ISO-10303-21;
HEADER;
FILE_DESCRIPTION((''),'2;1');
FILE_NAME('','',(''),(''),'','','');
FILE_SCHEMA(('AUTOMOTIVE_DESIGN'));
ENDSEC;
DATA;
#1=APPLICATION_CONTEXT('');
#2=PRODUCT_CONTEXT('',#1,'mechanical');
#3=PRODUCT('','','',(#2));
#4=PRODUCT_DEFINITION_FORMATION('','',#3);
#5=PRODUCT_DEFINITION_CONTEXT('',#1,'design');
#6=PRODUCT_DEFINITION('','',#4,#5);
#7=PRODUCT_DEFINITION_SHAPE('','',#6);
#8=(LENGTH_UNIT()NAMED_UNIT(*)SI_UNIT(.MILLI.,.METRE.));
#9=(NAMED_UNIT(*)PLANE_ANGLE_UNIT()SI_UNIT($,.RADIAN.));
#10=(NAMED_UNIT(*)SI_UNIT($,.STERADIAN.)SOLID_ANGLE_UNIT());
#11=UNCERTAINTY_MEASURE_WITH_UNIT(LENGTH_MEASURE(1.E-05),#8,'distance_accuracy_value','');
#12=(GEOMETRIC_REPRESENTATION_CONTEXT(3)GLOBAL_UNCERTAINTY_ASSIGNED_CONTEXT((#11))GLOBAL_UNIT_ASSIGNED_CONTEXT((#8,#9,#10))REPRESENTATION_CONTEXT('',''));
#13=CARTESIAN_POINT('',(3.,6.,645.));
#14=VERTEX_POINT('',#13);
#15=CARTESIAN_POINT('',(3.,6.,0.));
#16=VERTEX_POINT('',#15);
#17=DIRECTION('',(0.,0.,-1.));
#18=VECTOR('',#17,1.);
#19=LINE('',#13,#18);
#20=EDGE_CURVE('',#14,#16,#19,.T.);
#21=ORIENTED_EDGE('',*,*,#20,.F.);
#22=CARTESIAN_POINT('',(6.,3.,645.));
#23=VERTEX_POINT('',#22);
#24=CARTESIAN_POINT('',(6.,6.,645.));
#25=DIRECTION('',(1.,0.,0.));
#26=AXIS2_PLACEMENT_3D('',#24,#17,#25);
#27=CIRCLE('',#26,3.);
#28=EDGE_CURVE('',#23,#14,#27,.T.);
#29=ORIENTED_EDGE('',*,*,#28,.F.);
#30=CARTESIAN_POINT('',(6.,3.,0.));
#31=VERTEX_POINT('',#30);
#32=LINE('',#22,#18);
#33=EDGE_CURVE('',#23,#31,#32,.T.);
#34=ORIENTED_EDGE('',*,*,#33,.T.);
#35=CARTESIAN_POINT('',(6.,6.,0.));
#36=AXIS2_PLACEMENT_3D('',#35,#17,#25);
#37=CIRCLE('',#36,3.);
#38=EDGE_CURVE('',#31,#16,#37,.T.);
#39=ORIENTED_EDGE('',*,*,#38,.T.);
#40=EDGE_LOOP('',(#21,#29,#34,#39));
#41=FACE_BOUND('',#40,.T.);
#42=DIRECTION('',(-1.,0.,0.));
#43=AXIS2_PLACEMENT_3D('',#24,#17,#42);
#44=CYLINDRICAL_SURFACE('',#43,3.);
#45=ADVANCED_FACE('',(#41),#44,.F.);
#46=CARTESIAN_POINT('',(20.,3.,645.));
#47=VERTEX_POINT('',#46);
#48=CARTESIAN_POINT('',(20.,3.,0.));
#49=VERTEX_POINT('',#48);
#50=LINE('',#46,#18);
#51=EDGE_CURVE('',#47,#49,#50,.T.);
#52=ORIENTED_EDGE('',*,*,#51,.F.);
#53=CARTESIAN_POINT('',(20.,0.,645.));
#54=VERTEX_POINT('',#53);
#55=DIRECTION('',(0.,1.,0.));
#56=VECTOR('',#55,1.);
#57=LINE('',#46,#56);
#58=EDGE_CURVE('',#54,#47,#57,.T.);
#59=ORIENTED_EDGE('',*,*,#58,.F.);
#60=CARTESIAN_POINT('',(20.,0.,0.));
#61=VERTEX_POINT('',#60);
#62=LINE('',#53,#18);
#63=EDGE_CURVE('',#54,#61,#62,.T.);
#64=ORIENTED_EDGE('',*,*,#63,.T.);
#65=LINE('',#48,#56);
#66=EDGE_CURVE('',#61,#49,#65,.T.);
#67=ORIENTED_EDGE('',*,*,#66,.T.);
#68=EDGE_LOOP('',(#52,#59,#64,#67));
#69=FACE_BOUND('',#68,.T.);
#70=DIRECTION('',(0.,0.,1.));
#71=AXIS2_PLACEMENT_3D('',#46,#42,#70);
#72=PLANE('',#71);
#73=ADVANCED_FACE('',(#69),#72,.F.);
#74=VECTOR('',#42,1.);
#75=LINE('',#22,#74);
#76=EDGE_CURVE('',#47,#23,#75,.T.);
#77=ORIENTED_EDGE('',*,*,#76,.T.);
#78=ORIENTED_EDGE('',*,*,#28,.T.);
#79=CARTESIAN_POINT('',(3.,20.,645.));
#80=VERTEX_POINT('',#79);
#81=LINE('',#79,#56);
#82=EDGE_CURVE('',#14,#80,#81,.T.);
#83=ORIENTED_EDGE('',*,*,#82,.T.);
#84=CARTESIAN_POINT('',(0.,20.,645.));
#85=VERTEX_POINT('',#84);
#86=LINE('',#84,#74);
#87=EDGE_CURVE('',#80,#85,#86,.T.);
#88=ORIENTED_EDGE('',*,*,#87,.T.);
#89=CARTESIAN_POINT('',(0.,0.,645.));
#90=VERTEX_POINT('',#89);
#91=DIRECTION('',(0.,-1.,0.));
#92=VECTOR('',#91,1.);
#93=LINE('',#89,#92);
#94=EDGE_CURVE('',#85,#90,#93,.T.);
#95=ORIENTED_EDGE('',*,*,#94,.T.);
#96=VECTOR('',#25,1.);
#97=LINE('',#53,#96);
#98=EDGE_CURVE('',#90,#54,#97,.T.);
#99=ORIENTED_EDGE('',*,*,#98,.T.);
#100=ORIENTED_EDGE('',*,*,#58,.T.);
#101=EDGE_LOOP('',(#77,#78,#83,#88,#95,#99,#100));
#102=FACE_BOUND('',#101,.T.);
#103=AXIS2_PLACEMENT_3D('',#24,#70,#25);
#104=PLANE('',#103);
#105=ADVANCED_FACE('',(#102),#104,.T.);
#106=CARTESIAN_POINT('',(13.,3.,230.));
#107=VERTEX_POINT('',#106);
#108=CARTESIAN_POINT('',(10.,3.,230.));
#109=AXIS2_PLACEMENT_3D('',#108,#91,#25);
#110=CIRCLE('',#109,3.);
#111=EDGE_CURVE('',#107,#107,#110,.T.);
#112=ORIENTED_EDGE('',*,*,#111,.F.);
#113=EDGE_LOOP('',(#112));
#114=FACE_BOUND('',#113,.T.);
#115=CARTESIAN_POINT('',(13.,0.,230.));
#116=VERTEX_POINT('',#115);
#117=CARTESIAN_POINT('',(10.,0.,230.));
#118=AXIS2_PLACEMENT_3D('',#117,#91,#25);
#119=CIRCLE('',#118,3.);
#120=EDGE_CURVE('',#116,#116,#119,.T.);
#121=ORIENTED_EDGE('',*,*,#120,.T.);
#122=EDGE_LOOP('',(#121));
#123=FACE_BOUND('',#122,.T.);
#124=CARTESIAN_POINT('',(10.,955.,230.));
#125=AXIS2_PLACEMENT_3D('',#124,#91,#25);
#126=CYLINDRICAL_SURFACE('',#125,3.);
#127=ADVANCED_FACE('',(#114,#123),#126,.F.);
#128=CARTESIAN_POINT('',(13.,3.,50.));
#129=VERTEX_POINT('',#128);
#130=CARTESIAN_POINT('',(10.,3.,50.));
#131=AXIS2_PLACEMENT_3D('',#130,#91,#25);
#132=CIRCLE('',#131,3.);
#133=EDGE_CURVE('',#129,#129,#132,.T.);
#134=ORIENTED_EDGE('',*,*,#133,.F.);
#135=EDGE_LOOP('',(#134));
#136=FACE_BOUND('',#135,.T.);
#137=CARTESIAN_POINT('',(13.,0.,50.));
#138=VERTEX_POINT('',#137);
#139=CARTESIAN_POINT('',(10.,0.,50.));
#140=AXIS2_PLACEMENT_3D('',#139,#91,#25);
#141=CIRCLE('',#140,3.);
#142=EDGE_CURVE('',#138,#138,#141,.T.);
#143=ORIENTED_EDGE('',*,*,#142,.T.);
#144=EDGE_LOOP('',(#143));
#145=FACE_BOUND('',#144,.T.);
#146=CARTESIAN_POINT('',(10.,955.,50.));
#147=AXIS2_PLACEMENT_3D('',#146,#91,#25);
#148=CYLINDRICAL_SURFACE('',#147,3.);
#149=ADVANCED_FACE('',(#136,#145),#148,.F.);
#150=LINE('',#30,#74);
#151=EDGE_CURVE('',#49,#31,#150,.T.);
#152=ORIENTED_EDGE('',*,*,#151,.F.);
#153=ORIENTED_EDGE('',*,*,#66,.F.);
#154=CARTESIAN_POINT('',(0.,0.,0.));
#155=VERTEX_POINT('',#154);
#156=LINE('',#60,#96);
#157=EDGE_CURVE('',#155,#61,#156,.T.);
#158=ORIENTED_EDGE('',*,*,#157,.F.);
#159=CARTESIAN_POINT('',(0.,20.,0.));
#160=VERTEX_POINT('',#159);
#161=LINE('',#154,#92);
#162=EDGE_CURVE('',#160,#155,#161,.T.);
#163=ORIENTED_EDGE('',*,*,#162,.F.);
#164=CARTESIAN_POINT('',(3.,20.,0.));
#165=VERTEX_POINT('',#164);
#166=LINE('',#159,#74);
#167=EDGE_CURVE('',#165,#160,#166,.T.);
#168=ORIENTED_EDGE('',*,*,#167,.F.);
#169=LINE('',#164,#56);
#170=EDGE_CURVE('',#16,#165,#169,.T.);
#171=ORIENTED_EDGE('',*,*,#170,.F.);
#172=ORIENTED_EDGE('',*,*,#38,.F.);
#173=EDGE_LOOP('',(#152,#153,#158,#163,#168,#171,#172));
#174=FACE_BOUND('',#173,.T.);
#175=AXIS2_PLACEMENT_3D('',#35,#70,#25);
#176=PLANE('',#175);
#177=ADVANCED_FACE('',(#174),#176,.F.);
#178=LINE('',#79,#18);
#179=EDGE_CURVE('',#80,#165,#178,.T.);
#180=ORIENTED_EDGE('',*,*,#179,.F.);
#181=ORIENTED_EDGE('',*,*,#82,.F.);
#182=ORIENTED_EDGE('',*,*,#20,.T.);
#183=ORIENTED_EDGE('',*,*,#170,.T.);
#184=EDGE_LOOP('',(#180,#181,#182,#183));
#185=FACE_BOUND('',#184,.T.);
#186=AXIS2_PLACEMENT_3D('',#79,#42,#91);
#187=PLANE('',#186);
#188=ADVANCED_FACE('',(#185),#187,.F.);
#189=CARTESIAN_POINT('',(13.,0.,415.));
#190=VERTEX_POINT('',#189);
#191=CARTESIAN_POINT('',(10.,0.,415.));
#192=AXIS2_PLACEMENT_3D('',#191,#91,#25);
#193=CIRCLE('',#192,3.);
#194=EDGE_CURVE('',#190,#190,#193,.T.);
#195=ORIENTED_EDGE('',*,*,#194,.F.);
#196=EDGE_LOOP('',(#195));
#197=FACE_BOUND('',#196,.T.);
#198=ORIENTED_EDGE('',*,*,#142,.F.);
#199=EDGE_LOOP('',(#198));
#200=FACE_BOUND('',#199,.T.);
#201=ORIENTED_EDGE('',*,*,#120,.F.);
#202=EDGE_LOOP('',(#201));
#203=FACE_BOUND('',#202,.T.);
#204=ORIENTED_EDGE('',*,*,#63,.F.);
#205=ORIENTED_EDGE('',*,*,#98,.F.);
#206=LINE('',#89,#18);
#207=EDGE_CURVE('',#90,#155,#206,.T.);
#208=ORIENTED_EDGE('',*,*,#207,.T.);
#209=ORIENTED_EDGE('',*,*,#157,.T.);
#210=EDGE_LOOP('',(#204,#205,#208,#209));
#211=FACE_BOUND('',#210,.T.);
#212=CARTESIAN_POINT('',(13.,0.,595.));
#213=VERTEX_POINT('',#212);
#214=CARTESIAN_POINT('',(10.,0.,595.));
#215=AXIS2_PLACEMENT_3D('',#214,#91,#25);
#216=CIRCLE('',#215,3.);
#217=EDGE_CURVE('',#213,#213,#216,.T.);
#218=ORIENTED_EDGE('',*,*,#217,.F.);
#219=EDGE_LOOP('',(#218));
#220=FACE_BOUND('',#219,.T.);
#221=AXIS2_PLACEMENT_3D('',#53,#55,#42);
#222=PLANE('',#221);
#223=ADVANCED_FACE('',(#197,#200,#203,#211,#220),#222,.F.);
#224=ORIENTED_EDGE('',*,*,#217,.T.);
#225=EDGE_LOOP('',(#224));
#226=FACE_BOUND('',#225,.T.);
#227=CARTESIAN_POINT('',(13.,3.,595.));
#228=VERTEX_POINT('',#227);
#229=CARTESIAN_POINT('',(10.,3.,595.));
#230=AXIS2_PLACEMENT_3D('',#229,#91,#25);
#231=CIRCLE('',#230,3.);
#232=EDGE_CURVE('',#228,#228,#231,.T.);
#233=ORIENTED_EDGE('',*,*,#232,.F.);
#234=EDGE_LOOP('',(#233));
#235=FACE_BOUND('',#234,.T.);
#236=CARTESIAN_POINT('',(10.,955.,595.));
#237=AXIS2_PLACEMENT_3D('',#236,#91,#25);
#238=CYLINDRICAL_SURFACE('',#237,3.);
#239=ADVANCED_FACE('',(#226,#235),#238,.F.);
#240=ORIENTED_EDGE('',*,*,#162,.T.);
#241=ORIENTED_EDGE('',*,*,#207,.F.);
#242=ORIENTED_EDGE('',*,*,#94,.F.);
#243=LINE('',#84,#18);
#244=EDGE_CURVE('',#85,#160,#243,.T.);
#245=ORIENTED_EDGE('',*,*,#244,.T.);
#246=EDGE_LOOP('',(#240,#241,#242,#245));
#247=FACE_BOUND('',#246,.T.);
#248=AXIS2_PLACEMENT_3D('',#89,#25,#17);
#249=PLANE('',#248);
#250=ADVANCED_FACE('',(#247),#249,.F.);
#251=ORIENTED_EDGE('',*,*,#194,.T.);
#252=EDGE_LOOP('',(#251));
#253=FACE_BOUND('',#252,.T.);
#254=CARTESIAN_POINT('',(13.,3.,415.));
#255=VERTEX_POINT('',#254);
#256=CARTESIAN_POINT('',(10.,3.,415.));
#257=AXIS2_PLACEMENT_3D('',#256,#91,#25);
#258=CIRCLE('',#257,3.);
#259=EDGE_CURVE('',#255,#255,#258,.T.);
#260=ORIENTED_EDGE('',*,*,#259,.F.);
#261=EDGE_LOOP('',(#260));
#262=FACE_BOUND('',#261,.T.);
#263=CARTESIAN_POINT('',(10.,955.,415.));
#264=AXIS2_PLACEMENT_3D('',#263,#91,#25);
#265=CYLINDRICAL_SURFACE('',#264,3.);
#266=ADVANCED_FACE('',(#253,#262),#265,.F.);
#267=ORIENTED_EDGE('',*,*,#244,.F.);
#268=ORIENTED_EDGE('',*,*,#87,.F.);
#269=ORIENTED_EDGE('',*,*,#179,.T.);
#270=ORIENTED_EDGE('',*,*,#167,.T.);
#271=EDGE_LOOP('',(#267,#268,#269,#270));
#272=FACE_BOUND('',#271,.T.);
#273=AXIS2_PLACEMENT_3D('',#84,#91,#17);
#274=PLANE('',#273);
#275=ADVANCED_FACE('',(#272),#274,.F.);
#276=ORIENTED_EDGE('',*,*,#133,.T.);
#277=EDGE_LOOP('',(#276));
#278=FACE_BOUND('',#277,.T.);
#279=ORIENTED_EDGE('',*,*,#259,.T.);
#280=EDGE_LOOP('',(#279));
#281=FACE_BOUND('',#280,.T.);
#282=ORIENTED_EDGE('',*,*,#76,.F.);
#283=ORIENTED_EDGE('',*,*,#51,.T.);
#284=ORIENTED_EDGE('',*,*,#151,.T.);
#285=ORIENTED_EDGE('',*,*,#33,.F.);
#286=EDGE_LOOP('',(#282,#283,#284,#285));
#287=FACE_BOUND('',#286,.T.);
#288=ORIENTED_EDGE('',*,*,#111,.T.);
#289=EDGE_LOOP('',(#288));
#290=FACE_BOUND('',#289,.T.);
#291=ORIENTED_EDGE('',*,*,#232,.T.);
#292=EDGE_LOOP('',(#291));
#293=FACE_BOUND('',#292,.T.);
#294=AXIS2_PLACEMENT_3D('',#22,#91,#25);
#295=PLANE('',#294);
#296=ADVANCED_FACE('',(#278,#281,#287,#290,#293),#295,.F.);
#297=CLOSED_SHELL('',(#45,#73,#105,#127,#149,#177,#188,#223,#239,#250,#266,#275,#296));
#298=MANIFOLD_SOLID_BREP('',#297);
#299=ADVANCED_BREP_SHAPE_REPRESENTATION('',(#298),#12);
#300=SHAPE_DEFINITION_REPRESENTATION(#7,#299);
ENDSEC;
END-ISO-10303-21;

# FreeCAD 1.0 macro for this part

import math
import FreeCAD as App
import Part
import Sketcher
from FreeCAD import Vector

doc = App.newDocument("Part")
body = doc.addObject("PartDesign::Body", "Body")

sketch1 = doc.addObject("Sketcher::SketchObject", "Sketch")
body.addObject(sketch1)
sketch1.AttachmentSupport = (doc.XY_Plane, [""])
sketch1.MapMode = "FlatFace"
sketch1.addGeometry([
    Part.LineSegment(Vector(0, 20, 0), Vector(0, 0, 0)),
    Part.LineSegment(Vector(0, 0, 0), Vector(20, 0, 0)),
    Part.LineSegment(Vector(20, 0, 0), Vector(20, 3, 0)),
    Part.LineSegment(Vector(20, 3, 0), Vector(6, 3, 0)),
    Part.ArcOfCircle(Part.Circle(Vector(6, 6, 0), Vector(0, 0, 1), 3), math.radians(180), math.radians(270)),
    Part.LineSegment(Vector(3, 6, 0), Vector(3, 20, 0)),
    Part.LineSegment(Vector(3, 20, 0), Vector(0, 20, 0)),
], False)
sketch1.addConstraint([
    Sketcher.Constraint("Coincident", 0, 2, 1, 1),
    Sketcher.Constraint("Coincident", 1, 2, 2, 1),
    Sketcher.Constraint("Coincident", 2, 2, 3, 1),
    Sketcher.Constraint("Tangent", 3, 2, 4, 2),
    Sketcher.Constraint("Tangent", 4, 1, 5, 1),
    Sketcher.Constraint("Coincident", 5, 2, 6, 1),
    Sketcher.Constraint("Coincident", 6, 2, 0, 1),
    Sketcher.Constraint("Vertical", 0),
    Sketcher.Constraint("Horizontal", 1),
    Sketcher.Constraint("Vertical", 2),
    Sketcher.Constraint("Horizontal", 3),
    Sketcher.Constraint("Vertical", 5),
    Sketcher.Constraint("Horizontal", 6),
    Sketcher.Constraint("Coincident", 0, 2, -1, 1),
    Sketcher.Constraint("Equal", 1, 0),
    Sketcher.Constraint("Equal", 6, 2),
    Sketcher.Constraint("Radius", 4, 3.0),
    Sketcher.Constraint("DistanceX", 1, 1, 1, 2, 20.0),
    Sketcher.Constraint("DistanceX", 3, 2, 3, 1, 14.0),
])
pad1 = doc.addObject("PartDesign::Pad", "Pad")
body.addObject(pad1)
pad1.Profile = sketch1
pad1.Length = 645

sketch2 = doc.addObject("Sketcher::SketchObject", "Sketch001")
body.addObject(sketch2)
sketch2.AttachmentSupport = (doc.XZ_Plane, [""])
sketch2.MapMode = "FlatFace"
sketch2.addGeometry([
    Part.Circle(Vector(10, 50, 0), Vector(0, 0, 1), 3),
    Part.Circle(Vector(10, 595, 0), Vector(0, 0, 1), 3),
    Part.Circle(Vector(10, 230, 0), Vector(0, 0, 1), 3),
    Part.Circle(Vector(10, 415, 0), Vector(0, 0, 1), 3),
], False)
sketch2.addConstraint([
    Sketcher.Constraint("Equal", 0, 1),
    Sketcher.Constraint("Equal", 1, 2),
    Sketcher.Constraint("Equal", 2, 3),
    Sketcher.Constraint("Vertical", 0, 3, 1, 3),
    Sketcher.Constraint("Vertical", 1, 3, 2, 3),
    Sketcher.Constraint("Vertical", 2, 3, 3, 3),
    Sketcher.Constraint("Diameter", 0, 6.0),
    Sketcher.Constraint("DistanceX", -1, 1, 0, 3, 10.0),
    Sketcher.Constraint("DistanceY", -1, 1, 0, 3, 50.0),
    Sketcher.Constraint("DistanceY", -1, 1, 1, 3, 595.0),
    Sketcher.Constraint("DistanceY", -1, 1, 2, 3, 230.0),
    Sketcher.Constraint("DistanceY", -1, 1, 3, 3, 415.0),
])
pocket1 = doc.addObject("PartDesign::Pocket", "Pocket")
body.addObject(pocket1)
pocket1.Profile = sketch2
pocket1.Length = 955

doc.recompute()
